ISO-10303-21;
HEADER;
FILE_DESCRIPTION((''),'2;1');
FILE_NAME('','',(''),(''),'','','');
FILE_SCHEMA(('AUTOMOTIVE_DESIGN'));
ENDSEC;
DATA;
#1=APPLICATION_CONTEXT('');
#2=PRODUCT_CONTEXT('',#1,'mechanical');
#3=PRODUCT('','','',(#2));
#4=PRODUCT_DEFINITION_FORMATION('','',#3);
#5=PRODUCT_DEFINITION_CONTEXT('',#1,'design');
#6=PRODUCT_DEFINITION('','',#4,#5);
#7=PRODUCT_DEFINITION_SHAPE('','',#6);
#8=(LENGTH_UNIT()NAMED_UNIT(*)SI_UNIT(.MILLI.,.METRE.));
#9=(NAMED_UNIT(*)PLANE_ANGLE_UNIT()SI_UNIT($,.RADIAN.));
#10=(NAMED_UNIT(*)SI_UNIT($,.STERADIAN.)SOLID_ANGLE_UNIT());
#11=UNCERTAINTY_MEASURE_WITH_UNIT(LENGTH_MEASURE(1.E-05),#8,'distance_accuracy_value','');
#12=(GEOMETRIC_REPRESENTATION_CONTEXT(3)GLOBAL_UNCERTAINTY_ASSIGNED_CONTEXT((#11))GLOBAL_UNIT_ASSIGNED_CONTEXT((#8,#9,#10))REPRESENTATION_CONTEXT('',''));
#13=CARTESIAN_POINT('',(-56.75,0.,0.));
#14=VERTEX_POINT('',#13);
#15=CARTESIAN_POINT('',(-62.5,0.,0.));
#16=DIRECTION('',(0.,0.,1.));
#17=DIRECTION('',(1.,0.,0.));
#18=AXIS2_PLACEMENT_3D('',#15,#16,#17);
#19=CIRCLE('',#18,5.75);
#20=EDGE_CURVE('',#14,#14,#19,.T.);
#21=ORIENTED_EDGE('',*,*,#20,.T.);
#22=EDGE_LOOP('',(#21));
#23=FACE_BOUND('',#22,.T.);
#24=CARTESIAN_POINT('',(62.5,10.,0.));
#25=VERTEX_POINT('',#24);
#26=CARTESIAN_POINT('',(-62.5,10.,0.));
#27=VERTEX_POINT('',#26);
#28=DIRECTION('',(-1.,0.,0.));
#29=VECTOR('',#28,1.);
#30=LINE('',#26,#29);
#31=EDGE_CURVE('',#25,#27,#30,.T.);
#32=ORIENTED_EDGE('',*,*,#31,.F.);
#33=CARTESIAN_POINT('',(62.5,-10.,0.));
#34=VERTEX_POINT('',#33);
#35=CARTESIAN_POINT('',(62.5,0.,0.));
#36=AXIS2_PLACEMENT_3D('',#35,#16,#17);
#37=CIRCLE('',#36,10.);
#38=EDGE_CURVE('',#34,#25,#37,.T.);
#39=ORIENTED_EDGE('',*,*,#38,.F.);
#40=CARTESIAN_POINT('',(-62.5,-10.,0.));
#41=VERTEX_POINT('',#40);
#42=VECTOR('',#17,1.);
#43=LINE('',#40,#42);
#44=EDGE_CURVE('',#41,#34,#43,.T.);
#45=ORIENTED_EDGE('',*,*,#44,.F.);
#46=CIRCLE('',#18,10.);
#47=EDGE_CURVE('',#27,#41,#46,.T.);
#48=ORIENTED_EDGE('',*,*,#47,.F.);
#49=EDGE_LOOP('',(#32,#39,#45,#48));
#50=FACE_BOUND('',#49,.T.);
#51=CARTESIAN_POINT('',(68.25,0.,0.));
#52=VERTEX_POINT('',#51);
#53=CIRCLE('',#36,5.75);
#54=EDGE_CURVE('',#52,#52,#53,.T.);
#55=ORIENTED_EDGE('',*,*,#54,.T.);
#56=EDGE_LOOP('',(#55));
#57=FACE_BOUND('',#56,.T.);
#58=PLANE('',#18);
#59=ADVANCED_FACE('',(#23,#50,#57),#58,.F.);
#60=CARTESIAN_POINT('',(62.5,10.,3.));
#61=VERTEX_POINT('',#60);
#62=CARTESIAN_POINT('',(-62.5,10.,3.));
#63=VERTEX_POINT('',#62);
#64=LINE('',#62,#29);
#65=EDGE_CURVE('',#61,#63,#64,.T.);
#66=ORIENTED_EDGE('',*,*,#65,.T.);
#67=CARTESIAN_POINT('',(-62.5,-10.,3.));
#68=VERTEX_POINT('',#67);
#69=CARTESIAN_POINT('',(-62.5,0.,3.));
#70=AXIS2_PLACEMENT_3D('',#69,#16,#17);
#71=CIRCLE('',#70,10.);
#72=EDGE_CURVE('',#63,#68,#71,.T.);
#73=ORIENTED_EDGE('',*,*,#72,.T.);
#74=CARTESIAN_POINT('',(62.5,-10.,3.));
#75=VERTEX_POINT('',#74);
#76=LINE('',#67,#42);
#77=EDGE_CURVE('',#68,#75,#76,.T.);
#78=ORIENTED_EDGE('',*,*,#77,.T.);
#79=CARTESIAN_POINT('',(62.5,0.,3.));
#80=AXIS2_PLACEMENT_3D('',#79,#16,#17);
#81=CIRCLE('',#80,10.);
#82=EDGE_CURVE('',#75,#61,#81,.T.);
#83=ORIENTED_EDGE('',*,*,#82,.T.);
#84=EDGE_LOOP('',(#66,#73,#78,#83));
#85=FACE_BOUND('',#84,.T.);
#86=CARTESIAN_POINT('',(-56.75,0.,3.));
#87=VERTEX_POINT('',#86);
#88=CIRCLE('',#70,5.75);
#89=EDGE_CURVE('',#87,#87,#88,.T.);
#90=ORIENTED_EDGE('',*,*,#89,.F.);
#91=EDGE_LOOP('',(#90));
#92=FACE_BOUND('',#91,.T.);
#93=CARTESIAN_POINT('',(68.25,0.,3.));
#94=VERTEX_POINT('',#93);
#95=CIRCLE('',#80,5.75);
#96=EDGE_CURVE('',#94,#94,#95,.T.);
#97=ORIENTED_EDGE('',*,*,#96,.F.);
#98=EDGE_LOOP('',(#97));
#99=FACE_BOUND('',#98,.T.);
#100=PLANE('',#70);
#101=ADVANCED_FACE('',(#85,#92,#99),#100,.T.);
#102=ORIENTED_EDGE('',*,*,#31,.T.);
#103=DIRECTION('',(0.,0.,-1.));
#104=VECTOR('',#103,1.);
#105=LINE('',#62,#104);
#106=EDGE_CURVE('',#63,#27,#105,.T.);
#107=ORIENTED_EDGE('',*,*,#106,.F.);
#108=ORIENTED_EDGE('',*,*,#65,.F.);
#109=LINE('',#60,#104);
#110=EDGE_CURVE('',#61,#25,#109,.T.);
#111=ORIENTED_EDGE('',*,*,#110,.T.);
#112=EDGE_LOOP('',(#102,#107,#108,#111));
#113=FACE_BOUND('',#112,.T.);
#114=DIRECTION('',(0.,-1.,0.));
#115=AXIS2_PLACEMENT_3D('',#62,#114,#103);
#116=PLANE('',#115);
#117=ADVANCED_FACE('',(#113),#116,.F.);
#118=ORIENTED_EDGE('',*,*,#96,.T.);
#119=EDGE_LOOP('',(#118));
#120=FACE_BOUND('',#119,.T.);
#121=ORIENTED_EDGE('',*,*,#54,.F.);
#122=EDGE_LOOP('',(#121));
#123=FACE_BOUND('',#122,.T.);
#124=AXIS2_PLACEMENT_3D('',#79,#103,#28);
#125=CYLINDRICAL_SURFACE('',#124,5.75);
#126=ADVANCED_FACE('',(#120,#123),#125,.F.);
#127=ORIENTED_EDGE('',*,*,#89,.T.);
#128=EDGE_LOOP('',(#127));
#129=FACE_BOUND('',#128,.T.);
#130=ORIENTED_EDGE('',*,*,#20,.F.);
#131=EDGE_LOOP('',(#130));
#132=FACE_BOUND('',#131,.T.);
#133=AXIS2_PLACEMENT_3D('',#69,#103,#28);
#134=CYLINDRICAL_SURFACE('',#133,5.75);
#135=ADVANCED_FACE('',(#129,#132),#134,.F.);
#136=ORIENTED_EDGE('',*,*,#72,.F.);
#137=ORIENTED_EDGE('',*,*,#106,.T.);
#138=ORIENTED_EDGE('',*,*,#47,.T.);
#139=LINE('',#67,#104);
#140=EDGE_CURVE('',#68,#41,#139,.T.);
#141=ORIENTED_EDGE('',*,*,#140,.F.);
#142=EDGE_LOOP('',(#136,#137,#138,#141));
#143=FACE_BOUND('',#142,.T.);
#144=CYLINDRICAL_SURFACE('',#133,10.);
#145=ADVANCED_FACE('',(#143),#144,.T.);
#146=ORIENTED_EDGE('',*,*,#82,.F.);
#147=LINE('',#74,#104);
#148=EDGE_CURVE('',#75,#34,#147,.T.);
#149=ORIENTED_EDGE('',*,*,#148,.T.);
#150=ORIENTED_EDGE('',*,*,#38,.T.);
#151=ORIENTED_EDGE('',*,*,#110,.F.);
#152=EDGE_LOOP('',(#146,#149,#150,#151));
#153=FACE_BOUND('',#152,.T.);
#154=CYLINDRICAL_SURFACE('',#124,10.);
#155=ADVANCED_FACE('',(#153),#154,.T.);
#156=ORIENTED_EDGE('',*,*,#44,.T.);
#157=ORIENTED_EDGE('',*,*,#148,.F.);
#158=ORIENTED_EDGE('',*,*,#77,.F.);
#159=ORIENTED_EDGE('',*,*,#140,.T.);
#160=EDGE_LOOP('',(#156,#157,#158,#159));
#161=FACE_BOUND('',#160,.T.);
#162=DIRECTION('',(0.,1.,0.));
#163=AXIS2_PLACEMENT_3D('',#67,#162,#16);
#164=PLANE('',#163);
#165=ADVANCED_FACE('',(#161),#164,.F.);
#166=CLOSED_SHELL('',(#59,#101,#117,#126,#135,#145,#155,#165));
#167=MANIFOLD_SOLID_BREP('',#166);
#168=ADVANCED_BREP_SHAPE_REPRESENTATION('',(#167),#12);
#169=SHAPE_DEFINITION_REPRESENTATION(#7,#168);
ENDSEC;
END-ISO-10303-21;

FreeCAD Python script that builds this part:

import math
import FreeCAD as App
import Part
import Sketcher
from FreeCAD import Vector

doc = App.newDocument("Part")
body = doc.addObject("PartDesign::Body", "Body")

# Sketch on XY plane
sketch1 = body.newObject("Sketcher::SketchObject", "Sketch")
sketch1.AttachmentSupport = (doc.getObject("XY_Plane"), [""])
sketch1.MapMode = "FlatFace"
sketch1.addGeometry([
    Part.LineSegment(Vector(62, 10, 0), Vector(-62, 10, 0)),  # 0
    Part.ArcOfCircle(Part.Circle(Vector(-62, 0, 0), Vector(0, 0, 1), 10), math.radians(90), math.radians(270)),  # 1
    Part.LineSegment(Vector(-62, -10, 0), Vector(62, -10, 0)),  # 2
    Part.ArcOfCircle(Part.Circle(Vector(62, 0, 0), Vector(0, 0, 1), 10), math.radians(-90), math.radians(90)),  # 3
    Part.Circle(Vector(62, 0, 0), Vector(0, 0, 1), 6),  # 4
    Part.Circle(Vector(-62, 0, 0), Vector(0, 0, 1), 6),  # 5
], False)
sketch1.addConstraint([
    Sketcher.Constraint("Tangent", 0, 2, 1, 1),
    Sketcher.Constraint("Tangent", 1, 2, 2, 1),
    Sketcher.Constraint("Tangent", 2, 2, 3, 1),
    Sketcher.Constraint("Tangent", 3, 2, 0, 1),
    Sketcher.Constraint("Horizontal", 0),
    Sketcher.Constraint("Horizontal", 2),
    Sketcher.Constraint("Coincident", 4, 3, 3, 3),
    Sketcher.Constraint("Coincident", 5, 3, 1, 3),
    Sketcher.Constraint("Equal", 4, 5),
    Sketcher.Constraint("Symmetric", 1, 3, 3, 3, -1, 1),
    Sketcher.Constraint("Radius", 1, 10.0),
    Sketcher.Constraint("Diameter", 4, 11.5),
    Sketcher.Constraint("DistanceX", 0, 2, 0, 1, 125.0),
])
pad1 = body.newObject("PartDesign::Pad", "Pad")
pad1.Profile = sketch1
pad1.Length = 3

doc.recompute()
